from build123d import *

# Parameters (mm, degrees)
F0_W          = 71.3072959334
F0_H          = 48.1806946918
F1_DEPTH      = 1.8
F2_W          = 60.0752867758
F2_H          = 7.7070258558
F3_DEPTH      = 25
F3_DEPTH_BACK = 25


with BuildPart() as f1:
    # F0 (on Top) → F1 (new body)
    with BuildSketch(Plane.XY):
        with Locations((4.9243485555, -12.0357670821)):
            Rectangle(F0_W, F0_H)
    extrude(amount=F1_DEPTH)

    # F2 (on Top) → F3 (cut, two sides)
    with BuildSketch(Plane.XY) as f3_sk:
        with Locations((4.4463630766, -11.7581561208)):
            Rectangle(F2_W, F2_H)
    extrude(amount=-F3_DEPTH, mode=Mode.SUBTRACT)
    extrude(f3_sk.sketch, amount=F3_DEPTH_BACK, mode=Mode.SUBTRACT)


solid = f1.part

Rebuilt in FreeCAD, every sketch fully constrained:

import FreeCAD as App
import Part
import Sketcher
Q = App.Units.Quantity


def add_polygon(sketch, points):
    """Adds a closed chain of lines whose ends are joined by coincident constraints."""
    first, n = sketch.GeometryCount, len(points)
    for a, b in zip(points, points[1:] + points[:1]):
        sketch.addGeometry(Part.LineSegment(App.Vector(*a, 0), App.Vector(*b, 0)), False)
    for i in range(n):
        sketch.addConstraint(Sketcher.Constraint("Coincident", first + i, 2, first + (i + 1) % n, 1))

doc = App.newDocument("Part")
body = doc.addObject("PartDesign::Body", "Body")

# Sketch on XY plane
sketch1 = body.newObject("Sketcher::SketchObject", "Sketch")
sketch1.AttachmentSupport = (doc.getObject("XY_Plane"), [""])
sketch1.MapMode = "FlatFace"
add_polygon(sketch1, [(-31, 12), (-31, -36), (41, -36), (41, 12)])  # lines 0-3
sketch1.addConstraint(Sketcher.Constraint("Vertical", 0))
sketch1.addConstraint(Sketcher.Constraint("Horizontal", 1))
sketch1.addConstraint(Sketcher.Constraint("Vertical", 2))
sketch1.addConstraint(Sketcher.Constraint("Horizontal", 3))
sketch1.addConstraint(Sketcher.Constraint("DistanceX", 0, 2, -1, 1, Q("30.729299 mm")))
sketch1.addConstraint(Sketcher.Constraint("DistanceX", 1, 1, 1, 2, Q("71.307296 mm")))
sketch1.addConstraint(Sketcher.Constraint("DistanceY", 0, 2, 0, 1, Q("48.180695 mm")))
sketch1.addConstraint(Sketcher.Constraint("DistanceY", -1, 1, 2, 2, Q("12.05458 mm")))
pad1 = body.newObject("PartDesign::Pad", "Pad")
pad1.Profile = sketch1
pad1.Length = 1.8

# Sketch on XY plane
sketch2 = body.newObject("Sketcher::SketchObject", "Sketch001")
sketch2.AttachmentSupport = (doc.getObject("XY_Plane"), [""])
sketch2.MapMode = "FlatFace"
add_polygon(sketch2, [(-26, -8), (-26, -16), (34, -16), (34, -8)])  # lines 0-3
sketch2.addConstraint(Sketcher.Constraint("Vertical", 0))
sketch2.addConstraint(Sketcher.Constraint("Horizontal", 1))
sketch2.addConstraint(Sketcher.Constraint("Vertical", 2))
sketch2.addConstraint(Sketcher.Constraint("Horizontal", 3))
sketch2.addConstraint(Sketcher.Constraint("DistanceX", 1, 1, 1, 2, Q("60.075287 mm")))
sketch2.addConstraint(Sketcher.Constraint("DistanceY", 0, 2, 0, 1, Q("7.707026 mm")))
sketch2.addConstraint(Sketcher.Constraint("DistanceX", 0, 2, -1, 1, Q("25.59128 mm")))
sketch2.addConstraint(Sketcher.Constraint("DistanceY", 0, 2, -1, 1, Q("15.611669 mm")))
pocket1 = body.newObject("PartDesign::Pocket", "Pocket")
pocket1.Profile = sketch2
pocket1.Type = "ThroughAll"
pocket1.Midplane = True

doc.recompute()
